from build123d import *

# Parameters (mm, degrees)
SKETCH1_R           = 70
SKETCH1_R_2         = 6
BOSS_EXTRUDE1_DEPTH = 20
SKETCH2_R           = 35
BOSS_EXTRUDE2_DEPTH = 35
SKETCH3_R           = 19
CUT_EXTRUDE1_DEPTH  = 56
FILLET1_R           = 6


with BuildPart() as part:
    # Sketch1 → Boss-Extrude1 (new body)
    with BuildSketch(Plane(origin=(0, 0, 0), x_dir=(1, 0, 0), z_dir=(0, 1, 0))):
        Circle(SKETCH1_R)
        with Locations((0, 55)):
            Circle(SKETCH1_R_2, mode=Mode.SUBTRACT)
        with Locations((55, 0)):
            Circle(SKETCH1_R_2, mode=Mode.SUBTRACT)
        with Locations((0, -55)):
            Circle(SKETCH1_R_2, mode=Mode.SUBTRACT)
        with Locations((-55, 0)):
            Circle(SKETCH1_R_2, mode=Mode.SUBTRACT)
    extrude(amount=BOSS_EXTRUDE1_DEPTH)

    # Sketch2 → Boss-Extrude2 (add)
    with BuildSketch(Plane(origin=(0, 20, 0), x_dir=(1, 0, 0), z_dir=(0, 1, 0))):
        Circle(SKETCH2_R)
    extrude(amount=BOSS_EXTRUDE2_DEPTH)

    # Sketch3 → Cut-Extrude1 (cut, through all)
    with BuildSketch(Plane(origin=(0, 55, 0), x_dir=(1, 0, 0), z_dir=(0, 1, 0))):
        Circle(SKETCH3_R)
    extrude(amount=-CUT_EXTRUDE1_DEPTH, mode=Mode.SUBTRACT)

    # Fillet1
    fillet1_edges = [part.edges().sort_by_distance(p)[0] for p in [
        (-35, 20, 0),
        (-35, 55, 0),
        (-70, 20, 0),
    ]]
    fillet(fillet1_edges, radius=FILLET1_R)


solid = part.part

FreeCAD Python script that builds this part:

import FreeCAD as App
import Part
import Sketcher

V = App.Vector


def edges_at(feature, points):
    """Names of the edges that pass closest to the given points."""
    edges = feature.Shape.Edges
    near = lambda p: min(range(len(edges)), key=lambda i: edges[i].distToShape(Part.Vertex(*p))[0])
    return sorted({f"Edge{near(p) + 1}" for p in points})

doc = App.newDocument("Part")
body = doc.addObject("PartDesign::Body", "Body")

# Sketch on XZ plane
sketch1 = doc.addObject("Sketcher::SketchObject", "Sketch")
body.addObject(sketch1)
sketch1.AttachmentSupport = (doc.XZ_Plane, [""])
sketch1.MapMode = "FlatFace"
sketch1.addGeometry([
    Part.Circle(V(0, 0, 0), V(0, 0, 1), 70),  # 0
    Part.Circle(V(0, 55, 0), V(0, 0, 1), 6),  # 1
    Part.Circle(V(-55, 0, 0), V(0, 0, 1), 6),  # 2
    Part.Circle(V(55, 0, 0), V(0, 0, 1), 6),  # 3
    Part.Circle(V(0, -55, 0), V(0, 0, 1), 6),  # 4
], False)
sketch1.addConstraint([
    Sketcher.Constraint("Coincident", 0, 3, -1, 1),
    Sketcher.Constraint("Equal", 1, 2),
    Sketcher.Constraint("Equal", 2, 3),
    Sketcher.Constraint("Equal", 3, 4),
    Sketcher.Constraint("Symmetric", 2, 3, 3, 3, -1, 1),
    Sketcher.Constraint("Symmetric", 1, 3, 4, 3, -1, 1),
    Sketcher.Constraint("PointOnObject", 1, 3, -2),
    Sketcher.Constraint("PointOnObject", 2, 3, -1),
    Sketcher.Constraint("Diameter", 0, 140.0),
    Sketcher.Constraint("Diameter", 1, 12.0),
    Sketcher.Constraint("DistanceY", -1, 1, 1, 3, 55.0),
    Sketcher.Constraint("DistanceX", 2, 3, -1, 1, 55.0),
])
pad1 = doc.addObject("PartDesign::Pad", "Pad")
body.addObject(pad1)
pad1.Profile = sketch1
pad1.Length = 20
pad1.Reversed = True

# Sketch on XZ plane
sketch2 = doc.addObject("Sketcher::SketchObject", "Sketch001")
body.addObject(sketch2)
sketch2.AttachmentSupport = (doc.XZ_Plane, [""])
sketch2.MapMode = "FlatFace"
sketch2.AttachmentOffset = App.Placement(V(0, 0, -20), App.Rotation())
sketch2.addGeometry(Part.Circle(V(0, 0, 0), V(0, 0, 1), 35), False)
sketch2.addConstraint([
    Sketcher.Constraint("Coincident", 0, 3, -1, 1),
    Sketcher.Constraint("Diameter", 0, 70.0),
])
pad2 = doc.addObject("PartDesign::Pad", "Pad001")
body.addObject(pad2)
pad2.Profile = sketch2
pad2.Length = 35
pad2.Reversed = True

# Sketch on XZ plane
sketch3 = doc.addObject("Sketcher::SketchObject", "Sketch002")
body.addObject(sketch3)
sketch3.AttachmentSupport = (doc.XZ_Plane, [""])
sketch3.MapMode = "FlatFace"
sketch3.AttachmentOffset = App.Placement(V(0, 0, -55), App.Rotation())
sketch3.addGeometry(Part.Circle(V(0, 0, 0), V(0, 0, 1), 19), False)
sketch3.addConstraint([
    Sketcher.Constraint("Coincident", 0, 3, -1, 1),
    Sketcher.Constraint("Diameter", 0, 38.0),
])
pocket1 = doc.addObject("PartDesign::Pocket", "Pocket")
body.addObject(pocket1)
pocket1.Profile = sketch3
pocket1.Type = "ThroughAll"
pocket1.Reversed = True
doc.recompute()

fillet = doc.addObject("PartDesign::Fillet", "Fillet")
body.addObject(fillet)
fillet.Base = (pocket1, edges_at(pocket1, [(-35, 20, 0), (-35, 55, 0), (-70, 20, 0)]))
fillet.Radius = 6

doc.recompute()
